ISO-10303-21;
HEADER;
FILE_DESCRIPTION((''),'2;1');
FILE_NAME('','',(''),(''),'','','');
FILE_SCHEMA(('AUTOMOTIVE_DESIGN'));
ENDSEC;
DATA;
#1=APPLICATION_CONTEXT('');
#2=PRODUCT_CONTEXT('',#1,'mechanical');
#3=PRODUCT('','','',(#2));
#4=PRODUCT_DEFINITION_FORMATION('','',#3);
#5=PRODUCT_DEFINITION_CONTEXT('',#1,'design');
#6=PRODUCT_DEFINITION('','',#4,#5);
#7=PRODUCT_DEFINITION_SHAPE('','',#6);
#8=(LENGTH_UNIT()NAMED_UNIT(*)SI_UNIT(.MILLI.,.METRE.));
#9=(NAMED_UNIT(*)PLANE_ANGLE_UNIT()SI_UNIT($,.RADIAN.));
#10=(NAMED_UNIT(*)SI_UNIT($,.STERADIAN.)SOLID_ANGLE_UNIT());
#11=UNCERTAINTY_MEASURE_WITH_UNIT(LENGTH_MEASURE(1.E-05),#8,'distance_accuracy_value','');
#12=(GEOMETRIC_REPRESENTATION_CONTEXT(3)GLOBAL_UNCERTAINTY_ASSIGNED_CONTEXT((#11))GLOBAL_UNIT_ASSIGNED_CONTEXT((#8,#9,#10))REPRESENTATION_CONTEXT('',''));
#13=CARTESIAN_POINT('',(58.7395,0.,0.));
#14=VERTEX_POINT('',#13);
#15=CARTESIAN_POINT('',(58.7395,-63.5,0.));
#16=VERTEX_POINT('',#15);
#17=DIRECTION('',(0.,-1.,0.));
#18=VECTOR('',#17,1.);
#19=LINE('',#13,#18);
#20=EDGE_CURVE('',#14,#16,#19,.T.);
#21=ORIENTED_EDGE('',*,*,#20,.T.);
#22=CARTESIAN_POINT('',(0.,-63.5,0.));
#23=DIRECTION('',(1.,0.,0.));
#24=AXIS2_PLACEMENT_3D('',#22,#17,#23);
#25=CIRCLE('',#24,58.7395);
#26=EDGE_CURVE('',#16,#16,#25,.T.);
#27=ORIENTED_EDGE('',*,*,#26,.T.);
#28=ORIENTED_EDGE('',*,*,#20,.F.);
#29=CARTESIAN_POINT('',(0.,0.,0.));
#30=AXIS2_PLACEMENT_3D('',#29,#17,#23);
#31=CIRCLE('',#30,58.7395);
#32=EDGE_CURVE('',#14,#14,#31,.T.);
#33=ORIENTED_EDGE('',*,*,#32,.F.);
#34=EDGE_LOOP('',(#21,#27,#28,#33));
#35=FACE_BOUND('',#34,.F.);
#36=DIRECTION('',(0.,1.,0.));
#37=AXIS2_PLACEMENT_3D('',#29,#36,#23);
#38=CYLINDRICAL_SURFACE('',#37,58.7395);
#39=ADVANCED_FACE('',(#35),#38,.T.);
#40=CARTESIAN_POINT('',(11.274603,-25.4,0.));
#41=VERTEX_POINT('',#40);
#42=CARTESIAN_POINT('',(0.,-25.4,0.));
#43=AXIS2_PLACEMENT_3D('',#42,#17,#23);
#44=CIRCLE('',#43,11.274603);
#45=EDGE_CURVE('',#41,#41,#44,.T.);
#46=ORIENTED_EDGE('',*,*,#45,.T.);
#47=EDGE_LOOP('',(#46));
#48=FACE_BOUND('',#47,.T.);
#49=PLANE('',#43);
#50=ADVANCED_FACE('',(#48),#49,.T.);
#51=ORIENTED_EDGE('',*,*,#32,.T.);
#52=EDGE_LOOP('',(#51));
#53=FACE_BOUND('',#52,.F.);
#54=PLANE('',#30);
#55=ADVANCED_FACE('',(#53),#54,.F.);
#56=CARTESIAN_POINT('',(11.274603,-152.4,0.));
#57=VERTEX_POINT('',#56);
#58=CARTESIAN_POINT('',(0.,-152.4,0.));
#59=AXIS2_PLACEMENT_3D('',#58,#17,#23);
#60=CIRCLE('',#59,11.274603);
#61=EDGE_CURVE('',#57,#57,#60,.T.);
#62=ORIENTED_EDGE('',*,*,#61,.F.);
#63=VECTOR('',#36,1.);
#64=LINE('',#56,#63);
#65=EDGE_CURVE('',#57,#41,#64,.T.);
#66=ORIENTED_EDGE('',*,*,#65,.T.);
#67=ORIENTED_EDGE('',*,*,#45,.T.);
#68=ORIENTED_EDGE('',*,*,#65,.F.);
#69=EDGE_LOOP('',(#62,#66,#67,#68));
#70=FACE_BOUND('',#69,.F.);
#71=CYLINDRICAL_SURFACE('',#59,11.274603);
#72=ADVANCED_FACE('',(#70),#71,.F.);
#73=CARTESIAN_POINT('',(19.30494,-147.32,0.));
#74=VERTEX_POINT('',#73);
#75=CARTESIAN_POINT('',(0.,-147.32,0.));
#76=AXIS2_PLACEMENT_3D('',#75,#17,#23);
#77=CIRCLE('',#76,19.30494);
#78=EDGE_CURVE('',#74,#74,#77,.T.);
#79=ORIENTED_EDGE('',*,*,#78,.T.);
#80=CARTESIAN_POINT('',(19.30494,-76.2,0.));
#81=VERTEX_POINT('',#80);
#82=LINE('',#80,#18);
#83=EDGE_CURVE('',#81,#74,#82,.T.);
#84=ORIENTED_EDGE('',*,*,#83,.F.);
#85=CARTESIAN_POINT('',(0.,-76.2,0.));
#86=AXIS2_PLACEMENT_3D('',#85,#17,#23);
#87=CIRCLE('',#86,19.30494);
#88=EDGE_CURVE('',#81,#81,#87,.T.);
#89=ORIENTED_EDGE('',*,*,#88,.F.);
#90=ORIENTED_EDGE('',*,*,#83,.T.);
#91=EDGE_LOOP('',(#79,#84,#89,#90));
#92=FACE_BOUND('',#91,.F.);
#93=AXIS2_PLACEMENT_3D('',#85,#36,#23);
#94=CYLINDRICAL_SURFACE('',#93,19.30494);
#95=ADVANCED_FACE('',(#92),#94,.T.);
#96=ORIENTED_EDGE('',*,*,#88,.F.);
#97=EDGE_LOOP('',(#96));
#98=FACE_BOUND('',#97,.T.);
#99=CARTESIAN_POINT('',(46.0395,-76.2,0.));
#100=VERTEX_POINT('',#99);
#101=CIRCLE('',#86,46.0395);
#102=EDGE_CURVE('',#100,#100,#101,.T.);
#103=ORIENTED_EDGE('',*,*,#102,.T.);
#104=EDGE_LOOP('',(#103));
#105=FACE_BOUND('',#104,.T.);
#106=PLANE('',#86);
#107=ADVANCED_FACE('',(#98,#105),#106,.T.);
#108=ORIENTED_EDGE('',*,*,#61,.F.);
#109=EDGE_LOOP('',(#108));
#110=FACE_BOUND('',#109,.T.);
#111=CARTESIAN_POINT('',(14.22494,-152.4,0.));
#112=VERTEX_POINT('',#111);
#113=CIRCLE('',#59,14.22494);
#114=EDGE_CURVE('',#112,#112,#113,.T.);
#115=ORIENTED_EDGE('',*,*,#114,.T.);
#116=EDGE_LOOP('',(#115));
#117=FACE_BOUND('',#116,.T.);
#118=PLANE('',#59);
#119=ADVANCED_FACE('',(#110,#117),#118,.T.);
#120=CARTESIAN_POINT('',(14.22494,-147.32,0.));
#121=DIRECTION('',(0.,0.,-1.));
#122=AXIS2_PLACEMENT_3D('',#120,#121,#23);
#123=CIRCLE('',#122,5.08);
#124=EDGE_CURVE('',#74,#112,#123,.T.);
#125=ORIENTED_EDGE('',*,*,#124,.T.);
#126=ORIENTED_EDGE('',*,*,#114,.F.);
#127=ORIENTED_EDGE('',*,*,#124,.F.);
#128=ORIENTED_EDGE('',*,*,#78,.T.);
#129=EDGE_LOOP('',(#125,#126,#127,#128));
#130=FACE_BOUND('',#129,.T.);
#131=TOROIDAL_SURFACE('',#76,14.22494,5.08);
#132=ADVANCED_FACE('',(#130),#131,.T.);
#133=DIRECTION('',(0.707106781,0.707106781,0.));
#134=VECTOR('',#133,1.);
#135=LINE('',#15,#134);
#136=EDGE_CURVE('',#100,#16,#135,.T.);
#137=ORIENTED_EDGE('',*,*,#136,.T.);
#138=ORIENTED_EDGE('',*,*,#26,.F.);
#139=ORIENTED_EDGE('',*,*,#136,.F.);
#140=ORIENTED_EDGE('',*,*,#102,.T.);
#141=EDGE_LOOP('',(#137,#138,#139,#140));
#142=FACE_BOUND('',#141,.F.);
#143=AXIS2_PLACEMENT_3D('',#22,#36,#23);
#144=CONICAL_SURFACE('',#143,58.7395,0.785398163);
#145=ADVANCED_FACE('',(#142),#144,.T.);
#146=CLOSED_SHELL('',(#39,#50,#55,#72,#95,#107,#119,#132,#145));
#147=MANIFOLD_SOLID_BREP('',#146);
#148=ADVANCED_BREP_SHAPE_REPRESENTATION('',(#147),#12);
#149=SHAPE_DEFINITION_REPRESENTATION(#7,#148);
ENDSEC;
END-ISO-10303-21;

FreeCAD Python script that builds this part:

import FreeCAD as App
import Part
import Sketcher
Q = App.Units.Quantity


def edges_at(feature, points):
    """Names of the edges that pass closest to the given points."""
    edges = feature.Shape.Edges
    near = lambda p: min(range(len(edges)), key=lambda i: edges[i].distToShape(Part.Vertex(*p))[0])
    return sorted({f"Edge{near(p) + 1}" for p in points})

doc = App.newDocument("Part")
params = doc.addObject("Spreadsheet::Sheet", "Params")
for row, (alias, value) in enumerate([
    ("pad1_length", "3 in"),
    ("pad2_length", "3 in"),
    ("pocket1_length", "3 in"),
    ("pocket2_length", "5 in"),
    ("pocket3_length", "5 in"),
    ("fillet_radius", "0.2 in"),
    ("chamfer_size", "0.5 in"),
], start=1):
    params.set(f"A{row}", alias)
    params.set(f"B{row}", "=" + value)
    params.setAlias(f"B{row}", alias)

body = doc.addObject("PartDesign::Body", "Body")

# Sketch on XZ plane
sketch1 = body.newObject("Sketcher::SketchObject", "Sketch")
sketch1.AttachmentSupport = (doc.getObject("XZ_Plane"), [""])
sketch1.MapMode = "FlatFace"
sketch1.addGeometry(Part.Circle(App.Vector(0, 0, 0), App.Vector(0, 0, 1), 59), False)
sketch1.addConstraint(Sketcher.Constraint("Coincident", 0, 3, -1, 1))
sketch1.addConstraint(Sketcher.Constraint("Diameter", 0, Q("117.479 mm")))
pad1 = body.newObject("PartDesign::Pad", "Pad")
pad1.Profile = sketch1
pad1.setExpression("Length", "Params.pad1_length")

# Sketch on XZ plane
sketch2 = body.newObject("Sketcher::SketchObject", "Sketch001")
sketch2.AttachmentSupport = (doc.getObject("XZ_Plane"), [""])
sketch2.MapMode = "FlatFace"
sketch2.AttachmentOffset = App.Placement(App.Vector(0, 0, 3 * 25.4), App.Rotation())
sketch2.addGeometry(Part.Circle(App.Vector(0, 0, 0), App.Vector(0, 0, 1), 19), False)
sketch2.addConstraint(Sketcher.Constraint("Coincident", 0, 3, -1, 1))
sketch2.addConstraint(Sketcher.Constraint("Diameter", 0, Q("38.60988 mm")))
pad2 = body.newObject("PartDesign::Pad", "Pad001")
pad2.Profile = sketch2
pad2.setExpression("Length", "Params.pad2_length")

# Sketch on XZ plane
sketch3 = body.newObject("Sketcher::SketchObject", "Sketch002")
sketch3.AttachmentSupport = (doc.getObject("XZ_Plane"), [""])
sketch3.MapMode = "FlatFace"
sketch3.addGeometry(Part.Circle(App.Vector(0, 0, 0), App.Vector(0, 0, 1), 10), False)
sketch3.addConstraint(Sketcher.Constraint("Coincident", 0, 3, -1, 1))
sketch3.addConstraint(Sketcher.Constraint("Diameter", 0, Q("19.38571 mm")))
pocket1 = body.newObject("PartDesign::Pocket", "Pocket")
pocket1.Profile = sketch3
pocket1.setExpression("Length", "Params.pocket1_length")

# Sketch on XZ plane
sketch4 = body.newObject("Sketcher::SketchObject", "Sketch003")
sketch4.AttachmentSupport = (doc.getObject("XZ_Plane"), [""])
sketch4.MapMode = "FlatFace"
sketch4.addGeometry(Part.Circle(App.Vector(0, 0, 0), App.Vector(0, 0, 1), 10), False)
sketch4.addConstraint(Sketcher.Constraint("Coincident", 0, 3, -1, 1))
sketch4.addConstraint(Sketcher.Constraint("Diameter", 0, Q("19.312772 mm")))
pocket2 = body.newObject("PartDesign::Pocket", "Pocket001")
pocket2.Profile = sketch4
pocket2.setExpression("Length", "Params.pocket2_length")

# Sketch on XZ plane
sketch5 = body.newObject("Sketcher::SketchObject", "Sketch004")
sketch5.AttachmentSupport = (doc.getObject("XZ_Plane"), [""])
sketch5.MapMode = "FlatFace"
sketch5.AttachmentOffset = App.Placement(App.Vector(0, 0, 6 * 25.4), App.Rotation())
sketch5.addGeometry(Part.Circle(App.Vector(0, 0, 0), App.Vector(0, 0, 1), 11), False)
sketch5.addConstraint(Sketcher.Constraint("Coincident", 0, 3, -1, 1))
sketch5.addConstraint(Sketcher.Constraint("Diameter", 0, Q("22.549206 mm")))
pocket3 = body.newObject("PartDesign::Pocket", "Pocket002")
pocket3.Profile = sketch5
pocket3.setExpression("Length", "Params.pocket3_length")
doc.recompute()

fillet = body.newObject("PartDesign::Fillet", "Fillet")
fillet.Base = (pocket3, edges_at(pocket3, [(-19.305, -152.4, 0)]))
fillet.setExpression("Radius", "Params.fillet_radius")
doc.recompute()

chamfer = body.newObject("PartDesign::Chamfer", "Chamfer")
chamfer.Base = (fillet, edges_at(fillet, [(-58.739, -76.2, 0)]))
chamfer.setExpression("Size", "Params.chamfer_size")

doc.recompute()
